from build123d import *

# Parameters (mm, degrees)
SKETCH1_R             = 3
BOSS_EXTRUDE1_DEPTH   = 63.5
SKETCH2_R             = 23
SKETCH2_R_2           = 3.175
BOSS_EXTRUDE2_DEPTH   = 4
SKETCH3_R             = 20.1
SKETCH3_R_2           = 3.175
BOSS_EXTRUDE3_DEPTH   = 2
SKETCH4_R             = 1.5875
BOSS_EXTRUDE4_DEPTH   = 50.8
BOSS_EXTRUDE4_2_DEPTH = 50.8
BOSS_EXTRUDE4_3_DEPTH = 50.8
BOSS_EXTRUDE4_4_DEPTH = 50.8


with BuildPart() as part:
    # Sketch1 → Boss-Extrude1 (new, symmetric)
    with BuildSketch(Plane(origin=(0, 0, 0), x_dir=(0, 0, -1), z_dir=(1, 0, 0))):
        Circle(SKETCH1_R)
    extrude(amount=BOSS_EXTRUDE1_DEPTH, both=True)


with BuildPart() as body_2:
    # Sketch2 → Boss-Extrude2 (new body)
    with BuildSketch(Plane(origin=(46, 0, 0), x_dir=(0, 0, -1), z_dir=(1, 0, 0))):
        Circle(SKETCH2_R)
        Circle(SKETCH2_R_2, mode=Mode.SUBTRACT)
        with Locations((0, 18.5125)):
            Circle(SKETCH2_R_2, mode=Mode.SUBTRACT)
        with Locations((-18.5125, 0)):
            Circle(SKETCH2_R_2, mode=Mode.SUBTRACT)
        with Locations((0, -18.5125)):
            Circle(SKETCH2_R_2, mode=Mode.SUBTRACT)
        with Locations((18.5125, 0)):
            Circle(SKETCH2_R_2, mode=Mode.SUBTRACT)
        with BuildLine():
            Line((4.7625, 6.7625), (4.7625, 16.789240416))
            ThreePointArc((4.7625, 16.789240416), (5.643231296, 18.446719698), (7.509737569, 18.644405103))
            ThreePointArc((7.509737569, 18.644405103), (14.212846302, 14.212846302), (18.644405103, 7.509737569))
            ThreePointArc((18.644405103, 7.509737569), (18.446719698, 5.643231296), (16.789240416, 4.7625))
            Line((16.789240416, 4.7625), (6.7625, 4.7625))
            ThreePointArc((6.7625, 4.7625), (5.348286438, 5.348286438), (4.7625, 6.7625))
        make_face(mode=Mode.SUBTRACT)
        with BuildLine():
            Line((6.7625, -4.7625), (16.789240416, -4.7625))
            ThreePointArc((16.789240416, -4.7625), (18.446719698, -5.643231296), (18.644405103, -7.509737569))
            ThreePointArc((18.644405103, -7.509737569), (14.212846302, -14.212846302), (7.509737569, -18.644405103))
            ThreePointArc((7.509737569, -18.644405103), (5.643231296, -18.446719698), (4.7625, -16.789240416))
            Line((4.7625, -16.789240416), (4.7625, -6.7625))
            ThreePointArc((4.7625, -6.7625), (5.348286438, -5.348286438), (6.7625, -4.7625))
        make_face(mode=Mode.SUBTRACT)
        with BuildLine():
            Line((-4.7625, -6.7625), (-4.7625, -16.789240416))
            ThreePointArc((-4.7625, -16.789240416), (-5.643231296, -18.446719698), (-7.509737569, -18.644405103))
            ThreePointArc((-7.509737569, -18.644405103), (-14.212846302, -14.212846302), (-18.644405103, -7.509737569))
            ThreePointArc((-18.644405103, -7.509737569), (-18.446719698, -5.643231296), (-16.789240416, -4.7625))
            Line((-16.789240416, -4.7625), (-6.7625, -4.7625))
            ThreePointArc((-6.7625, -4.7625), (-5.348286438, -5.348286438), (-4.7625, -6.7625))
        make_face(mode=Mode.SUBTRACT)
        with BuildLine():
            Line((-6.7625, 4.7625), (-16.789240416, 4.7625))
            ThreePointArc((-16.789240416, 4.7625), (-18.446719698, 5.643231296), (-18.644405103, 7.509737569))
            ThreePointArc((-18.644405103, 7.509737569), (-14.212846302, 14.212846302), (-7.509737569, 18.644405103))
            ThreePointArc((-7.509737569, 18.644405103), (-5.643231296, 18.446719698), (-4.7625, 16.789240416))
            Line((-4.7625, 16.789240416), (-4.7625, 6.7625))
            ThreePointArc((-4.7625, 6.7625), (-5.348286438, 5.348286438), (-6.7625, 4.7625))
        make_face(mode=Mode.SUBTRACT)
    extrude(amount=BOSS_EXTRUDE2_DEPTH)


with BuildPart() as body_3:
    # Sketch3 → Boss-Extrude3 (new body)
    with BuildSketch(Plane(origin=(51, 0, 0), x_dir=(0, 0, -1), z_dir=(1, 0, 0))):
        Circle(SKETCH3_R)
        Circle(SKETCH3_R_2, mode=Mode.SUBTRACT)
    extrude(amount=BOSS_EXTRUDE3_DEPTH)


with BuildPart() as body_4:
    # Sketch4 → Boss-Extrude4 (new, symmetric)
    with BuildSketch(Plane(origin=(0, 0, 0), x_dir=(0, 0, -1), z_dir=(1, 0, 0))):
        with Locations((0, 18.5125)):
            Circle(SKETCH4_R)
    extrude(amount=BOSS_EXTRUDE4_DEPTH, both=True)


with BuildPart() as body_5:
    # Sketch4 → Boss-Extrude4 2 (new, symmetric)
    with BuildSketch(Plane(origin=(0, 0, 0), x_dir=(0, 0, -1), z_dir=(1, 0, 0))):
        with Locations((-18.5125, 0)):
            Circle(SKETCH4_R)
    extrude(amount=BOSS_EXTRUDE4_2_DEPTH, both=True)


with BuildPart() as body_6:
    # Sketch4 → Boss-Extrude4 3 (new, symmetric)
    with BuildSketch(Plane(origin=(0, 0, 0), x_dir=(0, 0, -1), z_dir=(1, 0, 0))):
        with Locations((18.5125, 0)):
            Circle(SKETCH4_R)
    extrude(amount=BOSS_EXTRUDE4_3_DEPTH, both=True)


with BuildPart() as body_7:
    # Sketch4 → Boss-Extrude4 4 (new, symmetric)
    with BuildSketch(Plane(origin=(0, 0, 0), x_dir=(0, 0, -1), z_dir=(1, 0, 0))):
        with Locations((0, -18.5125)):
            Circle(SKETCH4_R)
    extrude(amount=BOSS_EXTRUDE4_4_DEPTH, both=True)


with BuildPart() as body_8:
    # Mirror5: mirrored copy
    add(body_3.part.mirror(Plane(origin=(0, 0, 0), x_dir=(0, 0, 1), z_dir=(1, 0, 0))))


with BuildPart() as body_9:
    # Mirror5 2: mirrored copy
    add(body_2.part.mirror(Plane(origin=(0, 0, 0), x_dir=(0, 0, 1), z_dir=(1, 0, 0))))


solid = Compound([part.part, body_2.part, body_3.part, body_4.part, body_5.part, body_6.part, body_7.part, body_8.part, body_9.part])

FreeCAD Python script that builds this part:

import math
import FreeCAD as App
import Part
import Sketcher
from FreeCAD import Vector

doc = App.newDocument("Part")
body = doc.addObject("PartDesign::Body", "Body")

# Sketch on YZ plane
sketch1 = doc.addObject("Sketcher::SketchObject", "Sketch")
body.addObject(sketch1)
sketch1.AttachmentSupport = (doc.YZ_Plane, [""])
sketch1.MapMode = "FlatFace"
sketch1.addGeometry(Part.Circle(Vector(0, 0, 0), Vector(0, 0, 1), 3), False)
sketch1.addConstraint(Sketcher.Constraint("Coincident", 0, 3, -1, 1))
sketch1.addConstraint(Sketcher.Constraint("Diameter", 0, 6.0))
pad1 = doc.addObject("PartDesign::Pad", "Pad")
body.addObject(pad1)
pad1.Profile = sketch1
pad1.Length = 127
pad1.Midplane = True
body2 = doc.addObject("PartDesign::Body", "Body001")

# Sketch on YZ plane
sketch2 = doc.addObject("Sketcher::SketchObject", "Sketch001")
body2.addObject(sketch2)
sketch2.AttachmentSupport = (doc.getObject("YZ_Plane001"), [""])
sketch2.MapMode = "FlatFace"
sketch2.AttachmentOffset = App.Placement(Vector(0, 0, 46), App.Rotation())
sketch2.addGeometry(Part.Circle(Vector(0, 0, 0), Vector(0, 0, 1), 23), False)
sketch2.addGeometry(Part.ArcOfCircle(Part.Circle(Vector(-6.8, 6.8, 0), Vector(0, 0, 1), 2), math.radians(-90), math.radians(0)), False)
sketch2.addGeometry(Part.LineSegment(Vector(-6.8, 4.8, 0), Vector(-16.8, 4.8, 0)), False)
sketch2.addGeometry(Part.ArcOfCircle(Part.Circle(Vector(-16.8, 6.8, 0), Vector(0, 0, 1), 2), math.radians(158), math.radians(270)), False)
sketch2.addGeometry(Part.ArcOfCircle(Part.Circle(Vector(0, 0, 0), Vector(0, 0, 1), 20.1), math.radians(112), math.radians(158)), False)
sketch2.addGeometry(Part.ArcOfCircle(Part.Circle(Vector(-6.8, 16.8, 0), Vector(0, 0, 1), 2), math.radians(0), math.radians(112)), False)
sketch2.addGeometry(Part.LineSegment(Vector(-4.8, 16.8, 0), Vector(-4.8, 6.8, 0)), False)
sketch2.addGeometry(Part.Circle(Vector(-18.5, 0, 0), Vector(0, 0, 1), 3.2), False)
sketch2.addGeometry(Part.Circle(Vector(0, 18.5, 0), Vector(0, 0, 1), 3.2), False)
sketch2.addGeometry(Part.Circle(Vector(0, 0, 0), Vector(0, 0, 1), 3.2), False)
sketch2.addGeometry(Part.ArcOfCircle(Part.Circle(Vector(-6.8, -6.8, 0), Vector(0, 0, 1), 2), math.radians(0), math.radians(90)), False)
sketch2.addGeometry(Part.LineSegment(Vector(-4.8, -6.8, 0), Vector(-4.8, -16.8, 0)), False)
sketch2.addGeometry(Part.ArcOfCircle(Part.Circle(Vector(-6.8, -16.8, 0), Vector(0, 0, 1), 2), math.radians(-112), math.radians(0)), False)
sketch2.addGeometry(Part.ArcOfCircle(Part.Circle(Vector(0, 0, 0), Vector(0, 0, 1), 20.1), math.radians(-158), math.radians(-112)), False)
sketch2.addGeometry(Part.ArcOfCircle(Part.Circle(Vector(-16.8, -6.8, 0), Vector(0, 0, 1), 2), math.radians(90), math.radians(202)), False)
sketch2.addGeometry(Part.LineSegment(Vector(-16.8, -4.8, 0), Vector(-6.8, -4.8, 0)), False)
sketch2.addGeometry(Part.Circle(Vector(0, -18.5, 0), Vector(0, 0, 1), 3.2), False)
sketch2.addGeometry(Part.ArcOfCircle(Part.Circle(Vector(6.8, 6.8, 0), Vector(0, 0, 1), 2), math.radians(-180), math.radians(-90)), False)
sketch2.addGeometry(Part.LineSegment(Vector(4.8, 6.8, 0), Vector(4.8, 16.8, 0)), False)
sketch2.addGeometry(Part.ArcOfCircle(Part.Circle(Vector(6.8, 16.8, 0), Vector(0, 0, 1), 2), math.radians(68), math.radians(180)), False)
sketch2.addGeometry(Part.ArcOfCircle(Part.Circle(Vector(0, 0, 0), Vector(0, 0, 1), 20.1), math.radians(22), math.radians(68)), False)
sketch2.addGeometry(Part.ArcOfCircle(Part.Circle(Vector(16.8, 6.8, 0), Vector(0, 0, 1), 2), math.radians(-90), math.radians(22)), False)
sketch2.addGeometry(Part.LineSegment(Vector(16.8, 4.8, 0), Vector(6.8, 4.8, 0)), False)
sketch2.addGeometry(Part.Circle(Vector(18.5, 0, 0), Vector(0, 0, 1), 3.2), False)
sketch2.addGeometry(Part.ArcOfCircle(Part.Circle(Vector(6.8, -6.8, 0), Vector(0, 0, 1), 2), math.radians(90), math.radians(180)), False)
sketch2.addGeometry(Part.LineSegment(Vector(6.8, -4.8, 0), Vector(16.8, -4.8, 0)), False)
sketch2.addGeometry(Part.ArcOfCircle(Part.Circle(Vector(16.8, -6.8, 0), Vector(0, 0, 1), 2), math.radians(-22), math.radians(90)), False)
sketch2.addGeometry(Part.ArcOfCircle(Part.Circle(Vector(0, 0, 0), Vector(0, 0, 1), 20.1), math.radians(-68), math.radians(-22)), False)
sketch2.addGeometry(Part.ArcOfCircle(Part.Circle(Vector(6.8, -16.8, 0), Vector(0, 0, 1), 2), math.radians(180), math.radians(292)), False)
sketch2.addGeometry(Part.LineSegment(Vector(4.8, -16.8, 0), Vector(4.8, -6.8, 0)), False)
sketch2.addConstraint(Sketcher.Constraint("Tangent", 1, 1, 2, 1))
sketch2.addConstraint(Sketcher.Constraint("Tangent", 2, 2, 3, 2))
sketch2.addConstraint(Sketcher.Constraint("Tangent", 3, 1, 4, 2))
sketch2.addConstraint(Sketcher.Constraint("Tangent", 4, 1, 5, 2))
sketch2.addConstraint(Sketcher.Constraint("Tangent", 5, 1, 6, 1))
sketch2.addConstraint(Sketcher.Constraint("Tangent", 6, 2, 1, 2))
sketch2.addConstraint(Sketcher.Constraint("Tangent", 10, 1, 11, 1))
sketch2.addConstraint(Sketcher.Constraint("Tangent", 11, 2, 12, 2))
sketch2.addConstraint(Sketcher.Constraint("Tangent", 12, 1, 13, 2))
sketch2.addConstraint(Sketcher.Constraint("Tangent", 13, 1, 14, 2))
sketch2.addConstraint(Sketcher.Constraint("Tangent", 14, 1, 15, 1))
sketch2.addConstraint(Sketcher.Constraint("Tangent", 15, 2, 10, 2))
sketch2.addConstraint(Sketcher.Constraint("Tangent", 17, 1, 18, 1))
sketch2.addConstraint(Sketcher.Constraint("Tangent", 18, 2, 19, 2))
sketch2.addConstraint(Sketcher.Constraint("Tangent", 19, 1, 20, 2))
sketch2.addConstraint(Sketcher.Constraint("Tangent", 20, 1, 21, 2))
sketch2.addConstraint(Sketcher.Constraint("Tangent", 21, 1, 22, 1))
sketch2.addConstraint(Sketcher.Constraint("Tangent", 22, 2, 17, 2))
sketch2.addConstraint(Sketcher.Constraint("Tangent", 24, 1, 25, 1))
sketch2.addConstraint(Sketcher.Constraint("Tangent", 25, 2, 26, 2))
sketch2.addConstraint(Sketcher.Constraint("Tangent", 26, 1, 27, 2))
sketch2.addConstraint(Sketcher.Constraint("Tangent", 27, 1, 28, 2))
sketch2.addConstraint(Sketcher.Constraint("Tangent", 28, 1, 29, 1))
sketch2.addConstraint(Sketcher.Constraint("Tangent", 29, 2, 24, 2))
sketch2.addConstraint(Sketcher.Constraint("Horizontal", 2))
sketch2.addConstraint(Sketcher.Constraint("Vertical", 6))
sketch2.addConstraint(Sketcher.Constraint("Vertical", 11))
sketch2.addConstraint(Sketcher.Constraint("Horizontal", 15))
sketch2.addConstraint(Sketcher.Constraint("Vertical", 18))
sketch2.addConstraint(Sketcher.Constraint("Horizontal", 22))
sketch2.addConstraint(Sketcher.Constraint("Horizontal", 25))
sketch2.addConstraint(Sketcher.Constraint("Vertical", 29))
sketch2.addConstraint(Sketcher.Constraint("Coincident", 0, 3, -1, 1))
sketch2.addConstraint(Sketcher.Constraint("Coincident", 4, 3, -1, 1))
sketch2.addConstraint(Sketcher.Constraint("Coincident", 9, 3, -1, 1))
sketch2.addConstraint(Sketcher.Constraint("Coincident", 13, 3, -1, 1))
sketch2.addConstraint(Sketcher.Constraint("Coincident", 20, 3, -1, 1))
sketch2.addConstraint(Sketcher.Constraint("Coincident", 27, 3, -1, 1))
sketch2.addConstraint(Sketcher.Constraint("Equal", 1, 3))
sketch2.addConstraint(Sketcher.Constraint("Equal", 3, 5))
sketch2.addConstraint(Sketcher.Constraint("Equal", 7, 8))
sketch2.addConstraint(Sketcher.Constraint("Equal", 8, 9))
sketch2.addConstraint(Sketcher.Constraint("Equal", 5, 10))
sketch2.addConstraint(Sketcher.Constraint("Equal", 10, 12))
sketch2.addConstraint(Sketcher.Constraint("Equal", 4, 13))
sketch2.addConstraint(Sketcher.Constraint("Equal", 12, 14))
sketch2.addConstraint(Sketcher.Constraint("Equal", 9, 16))
sketch2.addConstraint(Sketcher.Constraint("Equal", 14, 17))
sketch2.addConstraint(Sketcher.Constraint("Equal", 17, 19))
sketch2.addConstraint(Sketcher.Constraint("Equal", 13, 20))
sketch2.addConstraint(Sketcher.Constraint("Equal", 19, 21))
sketch2.addConstraint(Sketcher.Constraint("Equal", 16, 23))
sketch2.addConstraint(Sketcher.Constraint("Equal", 21, 24))
sketch2.addConstraint(Sketcher.Constraint("Equal", 24, 26))
sketch2.addConstraint(Sketcher.Constraint("Equal", 20, 27))
sketch2.addConstraint(Sketcher.Constraint("Equal", 26, 28))
sketch2.addConstraint(Sketcher.Constraint("Symmetric", 8, 3, 16, 3, -1, 1))
sketch2.addConstraint(Sketcher.Constraint("Symmetric", 10, 3, 17, 3, -1, 1))
sketch2.addConstraint(Sketcher.Constraint("Symmetric", 7, 3, 23, 3, -1, 1))
sketch2.addConstraint(Sketcher.Constraint("Symmetric", 1, 3, 24, 3, -1, 1))
sketch2.addConstraint(Sketcher.Constraint("Symmetric", 1, 3, 17, 3, -2))
sketch2.addConstraint(Sketcher.Constraint("PointOnObject", 7, 3, -1))
sketch2.addConstraint(Sketcher.Constraint("PointOnObject", 8, 3, -2))
sketch2.addConstraint(Sketcher.Constraint("Equal", 25, 6))
sketch2.addConstraint(Sketcher.Constraint("Diameter", 0, 46.0))
sketch2.addConstraint(Sketcher.Constraint("Radius", 1, 2.0))
sketch2.addConstraint(Sketcher.Constraint("Radius", 4, 20.1))
sketch2.addConstraint(Sketcher.Constraint("Diameter", 7, 6.35))
sketch2.addConstraint(Sketcher.Constraint("DistanceX", 7, 3, 1, 3, 11.75))
sketch2.addConstraint(Sketcher.Constraint("DistanceY", 1, 3, 8, 3, 11.75))
sketch2.addConstraint(Sketcher.Constraint("DistanceY", 10, 3, 1, 3, 13.525))
pad2 = doc.addObject("PartDesign::Pad", "Pad001")
body2.addObject(pad2)
pad2.Profile = sketch2
pad2.Length = 4
body3 = doc.addObject("PartDesign::Body", "Body002")

# Sketch on YZ plane
sketch3 = doc.addObject("Sketcher::SketchObject", "Sketch002")
body3.addObject(sketch3)
sketch3.AttachmentSupport = (doc.getObject("YZ_Plane002"), [""])
sketch3.MapMode = "FlatFace"
sketch3.AttachmentOffset = App.Placement(Vector(0, 0, 51), App.Rotation())
sketch3.addGeometry(Part.Circle(Vector(0, 0, 0), Vector(0, 0, 1), 20.1), False)
sketch3.addGeometry(Part.Circle(Vector(0, 0, 0), Vector(0, 0, 1), 3.2), False)
sketch3.addConstraint(Sketcher.Constraint("Coincident", 0, 3, -1, 1))
sketch3.addConstraint(Sketcher.Constraint("Coincident", 1, 3, -1, 1))
sketch3.addConstraint(Sketcher.Constraint("Diameter", 0, 40.2))
sketch3.addConstraint(Sketcher.Constraint("Diameter", 1, 6.35))
pad3 = doc.addObject("PartDesign::Pad", "Pad002")
body3.addObject(pad3)
pad3.Profile = sketch3
pad3.Length = 2
body4 = doc.addObject("PartDesign::Body", "Body003")

# Sketch on YZ plane
sketch4 = doc.addObject("Sketcher::SketchObject", "Sketch003")
body4.addObject(sketch4)
sketch4.AttachmentSupport = (doc.getObject("YZ_Plane003"), [""])
sketch4.MapMode = "FlatFace"
sketch4.addGeometry(Part.Circle(Vector(18.5, 0, 0), Vector(0, 0, 1), 1.6), False)
sketch4.addConstraint(Sketcher.Constraint("PointOnObject", 0, 3, -1))
sketch4.addConstraint(Sketcher.Constraint("Diameter", 0, 3.175))
sketch4.addConstraint(Sketcher.Constraint("DistanceX", -1, 1, 0, 3, 18.5125))
pad4 = doc.addObject("PartDesign::Pad", "Pad003")
body4.addObject(pad4)
pad4.Profile = sketch4
pad4.Length = 101.6
pad4.Midplane = True
body5 = doc.addObject("PartDesign::Body", "Body004")

# Sketch on YZ plane
sketch5 = doc.addObject("Sketcher::SketchObject", "Sketch004")
body5.addObject(sketch5)
sketch5.AttachmentSupport = (doc.getObject("YZ_Plane004"), [""])
sketch5.MapMode = "FlatFace"
sketch5.addGeometry(Part.Circle(Vector(0, 18.5, 0), Vector(0, 0, 1), 1.6), False)
sketch5.addConstraint(Sketcher.Constraint("PointOnObject", 0, 3, -2))
sketch5.addConstraint(Sketcher.Constraint("Diameter", 0, 3.175))
sketch5.addConstraint(Sketcher.Constraint("DistanceY", -1, 1, 0, 3, 18.5125))
pad5 = doc.addObject("PartDesign::Pad", "Pad004")
body5.addObject(pad5)
pad5.Profile = sketch5
pad5.Length = 101.6
pad5.Midplane = True
body6 = doc.addObject("PartDesign::Body", "Body005")

# Sketch on YZ plane
sketch6 = doc.addObject("Sketcher::SketchObject", "Sketch005")
body6.addObject(sketch6)
sketch6.AttachmentSupport = (doc.getObject("YZ_Plane005"), [""])
sketch6.MapMode = "FlatFace"
sketch6.addGeometry(Part.Circle(Vector(0, -18.5, 0), Vector(0, 0, 1), 1.6), False)
sketch6.addConstraint(Sketcher.Constraint("PointOnObject", 0, 3, -2))
sketch6.addConstraint(Sketcher.Constraint("Diameter", 0, 3.175))
sketch6.addConstraint(Sketcher.Constraint("DistanceY", 0, 3, -1, 1, 18.5125))
pad6 = doc.addObject("PartDesign::Pad", "Pad005")
body6.addObject(pad6)
pad6.Profile = sketch6
pad6.Length = 101.6
pad6.Midplane = True
body7 = doc.addObject("PartDesign::Body", "Body006")

# Sketch on YZ plane
sketch7 = doc.addObject("Sketcher::SketchObject", "Sketch006")
body7.addObject(sketch7)
sketch7.AttachmentSupport = (doc.getObject("YZ_Plane006"), [""])
sketch7.MapMode = "FlatFace"
sketch7.addGeometry(Part.Circle(Vector(-18.5, 0, 0), Vector(0, 0, 1), 1.6), False)
sketch7.addConstraint(Sketcher.Constraint("PointOnObject", 0, 3, -1))
sketch7.addConstraint(Sketcher.Constraint("Diameter", 0, 3.175))
sketch7.addConstraint(Sketcher.Constraint("DistanceX", 0, 3, -1, 1, 18.5125))
pad7 = doc.addObject("PartDesign::Pad", "Pad006")
body7.addObject(pad7)
pad7.Profile = sketch7
pad7.Length = 101.6
pad7.Midplane = True
body8 = doc.addObject("PartDesign::Body", "Body007")
doc.recompute()

mirroring = doc.addObject("Part::Mirroring", "Mirroring")
mirroring.Source = body3
mirroring.Base = Vector(0, 0, 0)
mirroring.Normal = Vector(1, 0, 0)
body8.BaseFeature = mirroring
doc.recompute()
body9 = doc.addObject("PartDesign::Body", "Body008")
doc.recompute()

mirroring2 = doc.addObject("Part::Mirroring", "Mirroring001")
mirroring2.Source = body2
mirroring2.Base = Vector(0, 0, 0)
mirroring2.Normal = Vector(1, 0, 0)
body9.BaseFeature = mirroring2
doc.recompute()
mirroring.Visibility = False
mirroring2.Visibility = False

doc.recompute()
